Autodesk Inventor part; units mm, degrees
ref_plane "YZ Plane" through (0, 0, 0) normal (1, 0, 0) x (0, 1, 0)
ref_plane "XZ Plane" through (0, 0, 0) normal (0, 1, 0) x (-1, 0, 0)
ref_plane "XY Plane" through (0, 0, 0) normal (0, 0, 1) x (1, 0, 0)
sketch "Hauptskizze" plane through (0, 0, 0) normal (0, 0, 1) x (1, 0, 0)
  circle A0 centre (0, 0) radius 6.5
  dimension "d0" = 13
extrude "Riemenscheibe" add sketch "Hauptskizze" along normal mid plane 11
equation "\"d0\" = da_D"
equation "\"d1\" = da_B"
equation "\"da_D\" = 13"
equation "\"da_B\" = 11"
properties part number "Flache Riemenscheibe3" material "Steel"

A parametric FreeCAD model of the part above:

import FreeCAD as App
import Part
import Sketcher
Q = App.Units.Quantity

doc = App.newDocument("Part")
params = doc.addObject("Spreadsheet::Sheet", "Params")
for row, (alias, value) in enumerate([
    ("sketch1_diameter", "13 mm"),
    ("pad1_length", "11 mm"),
], start=1):
    params.set(f"A{row}", alias)
    params.set(f"B{row}", "=" + value)
    params.setAlias(f"B{row}", alias)

body = doc.addObject("PartDesign::Body", "Body")

# Sketch on XY plane
sketch1 = doc.addObject("Sketcher::SketchObject", "Sketch")
body.addObject(sketch1)
sketch1.AttachmentSupport = (doc.XY_Plane, [""])
sketch1.MapMode = "FlatFace"
sketch1.addGeometry(Part.Circle(App.Vector(0, 0, 0), App.Vector(0, 0, 1), 6), False)
sketch1.addConstraint([
    Sketcher.Constraint("Coincident", 0, 3, -1, 1),
    Sketcher.Constraint("Diameter", 0, Q("13 mm")),
])
sketch1.setExpression("Constraints[1]", "Params.sketch1_diameter")
pad1 = doc.addObject("PartDesign::Pad", "Pad")
body.addObject(pad1)
pad1.Profile = sketch1
pad1.setExpression("Length", "Params.pad1_length")
pad1.Midplane = True

doc.recompute()
